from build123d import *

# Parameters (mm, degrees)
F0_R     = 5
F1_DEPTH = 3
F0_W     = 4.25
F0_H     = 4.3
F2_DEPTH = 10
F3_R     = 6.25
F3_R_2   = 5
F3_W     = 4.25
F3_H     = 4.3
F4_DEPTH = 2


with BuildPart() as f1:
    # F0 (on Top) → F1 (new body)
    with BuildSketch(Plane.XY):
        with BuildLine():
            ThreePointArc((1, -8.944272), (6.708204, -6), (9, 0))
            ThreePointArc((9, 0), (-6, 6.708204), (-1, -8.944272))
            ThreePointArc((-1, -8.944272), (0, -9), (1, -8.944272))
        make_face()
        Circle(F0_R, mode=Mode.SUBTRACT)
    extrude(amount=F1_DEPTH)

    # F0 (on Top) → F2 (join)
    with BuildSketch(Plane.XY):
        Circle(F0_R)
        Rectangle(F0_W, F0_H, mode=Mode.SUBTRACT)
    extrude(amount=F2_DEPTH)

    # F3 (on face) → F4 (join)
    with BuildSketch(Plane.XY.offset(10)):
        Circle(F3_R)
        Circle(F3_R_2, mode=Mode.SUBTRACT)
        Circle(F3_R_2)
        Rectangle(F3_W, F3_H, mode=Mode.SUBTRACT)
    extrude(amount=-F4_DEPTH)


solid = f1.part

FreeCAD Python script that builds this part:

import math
import FreeCAD as App
import Part
import Sketcher
from FreeCAD import Vector


def add_polygon(sketch, points):
    """Adds a closed chain of lines whose ends are joined by coincident constraints."""
    first, n = sketch.GeometryCount, len(points)
    for a, b in zip(points, points[1:] + points[:1]):
        sketch.addGeometry(Part.LineSegment(App.Vector(*a, 0), App.Vector(*b, 0)), False)
    for i in range(n):
        sketch.addConstraint(Sketcher.Constraint("Coincident", first + i, 2, first + (i + 1) % n, 1))

doc = App.newDocument("Part")
body = doc.addObject("PartDesign::Body", "Body")

# Sketch on XY plane
sketch1 = doc.addObject("Sketcher::SketchObject", "Sketch")
body.addObject(sketch1)
sketch1.AttachmentSupport = (doc.XY_Plane, [""])
sketch1.MapMode = "FlatFace"
sketch1.addGeometry([
    Part.ArcOfCircle(Part.Circle(Vector(0, 0, 0), Vector(0, 0, 1), 9), math.radians(-84), math.radians(0)),
    Part.ArcOfCircle(Part.Circle(Vector(0, 0, 0), Vector(0, 0, 1), 9), math.radians(0), math.radians(264)),
    Part.ArcOfCircle(Part.Circle(Vector(0, 0, 0), Vector(0, 0, 1), 9), math.radians(-96.38), math.radians(-83.62)),
    Part.Circle(Vector(0, 0, 0), Vector(0, 0, 1), 5),
], False)
sketch1.addConstraint([
    Sketcher.Constraint("Tangent", 0, 2, 1, 1),
    Sketcher.Constraint("Tangent", 1, 2, 2, 1),
    Sketcher.Constraint("Tangent", 2, 2, 0, 1),
    Sketcher.Constraint("Coincident", 0, 3, -1, 1),
    Sketcher.Constraint("Coincident", 3, 3, -1, 1),
    Sketcher.Constraint("PointOnObject", 0, 2, -1),
    Sketcher.Constraint("Horizontal", 1, 2, 2, 2),
    Sketcher.Constraint("Diameter", 3, 10.0),
    Sketcher.Constraint("Radius", 0, 9.0),
    Sketcher.Constraint("DistanceX", 1, 2, -1, 1, 1.0),
])
pad1 = doc.addObject("PartDesign::Pad", "Pad")
body.addObject(pad1)
pad1.Profile = sketch1
pad1.Length = 3

# Sketch on XY plane
sketch2 = doc.addObject("Sketcher::SketchObject", "Sketch001")
body.addObject(sketch2)
sketch2.AttachmentSupport = (doc.XY_Plane, [""])
sketch2.MapMode = "FlatFace"
sketch2.addGeometry(Part.Circle(Vector(0, 0, 0), Vector(0, 0, 1), 5), False)  # 0
add_polygon(sketch2, [(2.1, -2.1), (-2.1, -2.1), (-2.1, 2.1), (2.1, 2.1)])  # lines 1-4
sketch2.addConstraint([
    Sketcher.Constraint("Horizontal", 1),
    Sketcher.Constraint("Vertical", 2),
    Sketcher.Constraint("Horizontal", 3),
    Sketcher.Constraint("Vertical", 4),
    Sketcher.Constraint("Coincident", 0, 3, -1, 1),
    Sketcher.Constraint("Symmetric", 1, 2, 3, 2, -1, 1),
    Sketcher.Constraint("Diameter", 0, 10.0),
    Sketcher.Constraint("DistanceY", 2, 1, 2, 2, 4.3),
    Sketcher.Constraint("DistanceX", 1, 2, 1, 1, 4.25),
])
pad2 = doc.addObject("PartDesign::Pad", "Pad001")
body.addObject(pad2)
pad2.Profile = sketch2
pad2.Length = 10

# Sketch on XY plane
sketch3 = doc.addObject("Sketcher::SketchObject", "Sketch002")
body.addObject(sketch3)
sketch3.AttachmentSupport = (doc.XY_Plane, [""])
sketch3.MapMode = "FlatFace"
sketch3.AttachmentOffset = App.Placement(Vector(0, 0, 10), App.Rotation())
sketch3.addGeometry(Part.Circle(Vector(0, 0, 0), Vector(0, 0, 1), 6.2), False)  # 0
add_polygon(sketch3, [(2.1, -2.1), (-2.1, -2.1), (-2.1, 2.1), (2.1, 2.1)])  # lines 1-4
sketch3.addConstraint([
    Sketcher.Constraint("Horizontal", 1),
    Sketcher.Constraint("Vertical", 2),
    Sketcher.Constraint("Horizontal", 3),
    Sketcher.Constraint("Vertical", 4),
    Sketcher.Constraint("Coincident", 0, 3, -1, 1),
    Sketcher.Constraint("Symmetric", 1, 2, 3, 2, -1, 1),
    Sketcher.Constraint("Diameter", 0, 12.5),
    Sketcher.Constraint("DistanceY", 2, 1, 2, 2, 4.3),
    Sketcher.Constraint("DistanceX", 1, 2, 1, 1, 4.25),
])
pad3 = doc.addObject("PartDesign::Pad", "Pad002")
body.addObject(pad3)
pad3.Profile = sketch3
pad3.Length = 2
pad3.Reversed = True

doc.recompute()
